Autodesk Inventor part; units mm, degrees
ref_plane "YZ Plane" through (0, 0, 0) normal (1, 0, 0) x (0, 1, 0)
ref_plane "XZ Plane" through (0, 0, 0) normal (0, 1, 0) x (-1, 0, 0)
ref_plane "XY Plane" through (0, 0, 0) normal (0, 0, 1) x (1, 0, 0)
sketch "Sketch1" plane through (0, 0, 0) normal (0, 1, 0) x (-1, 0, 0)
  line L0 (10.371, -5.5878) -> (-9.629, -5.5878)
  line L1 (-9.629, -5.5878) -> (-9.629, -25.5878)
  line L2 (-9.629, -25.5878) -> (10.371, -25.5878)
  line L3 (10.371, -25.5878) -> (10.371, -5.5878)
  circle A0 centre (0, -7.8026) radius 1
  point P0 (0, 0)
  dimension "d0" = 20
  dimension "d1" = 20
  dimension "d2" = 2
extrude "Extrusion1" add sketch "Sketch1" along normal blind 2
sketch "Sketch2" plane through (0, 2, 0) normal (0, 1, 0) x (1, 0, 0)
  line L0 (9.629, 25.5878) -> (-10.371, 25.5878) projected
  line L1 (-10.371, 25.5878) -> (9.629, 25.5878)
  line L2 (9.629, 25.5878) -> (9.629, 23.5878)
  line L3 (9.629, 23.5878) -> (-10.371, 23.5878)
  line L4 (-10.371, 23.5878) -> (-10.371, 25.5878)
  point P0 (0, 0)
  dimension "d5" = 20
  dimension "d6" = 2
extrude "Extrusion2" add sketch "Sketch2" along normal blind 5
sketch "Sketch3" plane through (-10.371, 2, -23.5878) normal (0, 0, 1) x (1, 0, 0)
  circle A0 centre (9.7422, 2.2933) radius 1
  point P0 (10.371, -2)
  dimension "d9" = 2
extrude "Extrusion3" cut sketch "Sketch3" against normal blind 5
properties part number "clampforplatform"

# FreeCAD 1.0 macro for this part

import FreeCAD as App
import Part
import Sketcher


def add_polygon(sketch, points):
    """Adds a closed chain of lines whose ends are joined by coincident constraints."""
    first, n = sketch.GeometryCount, len(points)
    for a, b in zip(points, points[1:] + points[:1]):
        sketch.addGeometry(Part.LineSegment(App.Vector(*a, 0), App.Vector(*b, 0)), False)
    for i in range(n):
        sketch.addConstraint(Sketcher.Constraint("Coincident", first + i, 2, first + (i + 1) % n, 1))

doc = App.newDocument("Part")
params = doc.addObject("Spreadsheet::Sheet", "Params")
for row, (alias, value) in enumerate([
    ("sketch1_diameter", "2 mm"),
    ("sketch1_width", "20 mm"),
    ("pad1_length", "2 mm"),
    ("sketch2_width", "20 mm"),
    ("sketch2_height", "2 mm"),
    ("pad2_length", "5 mm"),
    ("sketch3_diameter", "2 mm"),
    ("pocket1_length", "5 mm"),
], start=1):
    params.set(f"A{row}", alias)
    params.set(f"B{row}", "=" + value)
    params.setAlias(f"B{row}", alias)

body = doc.addObject("PartDesign::Body", "Body")

# Sketch on XZ plane
sketch1 = doc.addObject("Sketcher::SketchObject", "Sketch")
body.addObject(sketch1)
sketch1.AttachmentSupport = (doc.XZ_Plane, [""])
sketch1.MapMode = "FlatFace"
add_polygon(sketch1, [(-10.371, -25.5878), (-10.371, -5.5878), (9.629, -5.5878), (9.629, -25.5878)])  # lines 0-3
sketch1.addGeometry(Part.Circle(App.Vector(0, -7.8026, 0), App.Vector(0, 0, 1), 1), False)  # 4
sketch1.addConstraint([
    Sketcher.Constraint("Vertical", 0),
    Sketcher.Constraint("Horizontal", 1),
    Sketcher.Constraint("Vertical", 2),
    Sketcher.Constraint("Horizontal", 3),
    Sketcher.Constraint("PointOnObject", 4, 3, -2),
    Sketcher.Constraint("Equal", 3, 0),
    Sketcher.Constraint("Diameter", 4, 2.0),
    Sketcher.Constraint("DistanceX", 1, 1, 1, 2, 20.0),
    Sketcher.Constraint("DistanceX", 0, 2, -1, 1, 10.371),
    Sketcher.Constraint("DistanceY", 4, 3, -1, 1, 7.8026),
    Sketcher.Constraint("DistanceY", 0, 2, -1, 1, 5.5878),
])
sketch1.setExpression("Constraints[10]", "Params.sketch1_diameter")
sketch1.setExpression("Constraints[11]", "Params.sketch1_width")
pad1 = doc.addObject("PartDesign::Pad", "Pad")
body.addObject(pad1)
pad1.Profile = sketch1
pad1.setExpression("Length", "Params.pad1_length")
pad1.Reversed = True

# Sketch on XZ plane
sketch2 = doc.addObject("Sketcher::SketchObject", "Sketch001")
body.addObject(sketch2)
sketch2.AttachmentSupport = (doc.XZ_Plane, [""])
sketch2.MapMode = "FlatFace"
sketch2.AttachmentOffset = App.Placement(App.Vector(0, 0, -2), App.Rotation())
add_polygon(sketch2, [(9.629, -23.5878), (9.629, -25.5878), (-10.371, -25.5878), (-10.371, -23.5878)])  # lines 0-3
sketch2.addConstraint([
    Sketcher.Constraint("Vertical", 0),
    Sketcher.Constraint("Horizontal", 1),
    Sketcher.Constraint("Vertical", 2),
    Sketcher.Constraint("Horizontal", 3),
    Sketcher.Constraint("DistanceX", 1, 2, 1, 1, 20.0),
    Sketcher.Constraint("DistanceY", 0, 2, 0, 1, 2.0),
    Sketcher.Constraint("DistanceX", -1, 1, 0, 2, 9.629),
    Sketcher.Constraint("DistanceY", 0, 2, -1, 1, 25.5878),
])
sketch2.setExpression("Constraints[8]", "Params.sketch2_width")
sketch2.setExpression("Constraints[9]", "Params.sketch2_height")
pad2 = doc.addObject("PartDesign::Pad", "Pad001")
body.addObject(pad2)
pad2.Profile = sketch2
pad2.setExpression("Length", "Params.pad2_length")
pad2.Reversed = True

# Sketch on XY plane
sketch3 = doc.addObject("Sketcher::SketchObject", "Sketch002")
body.addObject(sketch3)
sketch3.AttachmentSupport = (doc.XY_Plane, [""])
sketch3.MapMode = "FlatFace"
sketch3.AttachmentOffset = App.Placement(App.Vector(0, 0, -23.5878), App.Rotation())
sketch3.addGeometry(Part.Circle(App.Vector(-0.6288, 4.2933, 0), App.Vector(0, 0, 1), 1), False)
sketch3.addConstraint([
    Sketcher.Constraint("Diameter", 0, 2.0),
    Sketcher.Constraint("DistanceX", 0, 3, -1, 1, 0.6288),
    Sketcher.Constraint("DistanceY", -1, 1, 0, 3, 4.2933),
])
sketch3.setExpression("Constraints[0]", "Params.sketch3_diameter")
pocket1 = doc.addObject("PartDesign::Pocket", "Pocket")
body.addObject(pocket1)
pocket1.Profile = sketch3
pocket1.setExpression("Length", "Params.pocket1_length")

doc.recompute()
